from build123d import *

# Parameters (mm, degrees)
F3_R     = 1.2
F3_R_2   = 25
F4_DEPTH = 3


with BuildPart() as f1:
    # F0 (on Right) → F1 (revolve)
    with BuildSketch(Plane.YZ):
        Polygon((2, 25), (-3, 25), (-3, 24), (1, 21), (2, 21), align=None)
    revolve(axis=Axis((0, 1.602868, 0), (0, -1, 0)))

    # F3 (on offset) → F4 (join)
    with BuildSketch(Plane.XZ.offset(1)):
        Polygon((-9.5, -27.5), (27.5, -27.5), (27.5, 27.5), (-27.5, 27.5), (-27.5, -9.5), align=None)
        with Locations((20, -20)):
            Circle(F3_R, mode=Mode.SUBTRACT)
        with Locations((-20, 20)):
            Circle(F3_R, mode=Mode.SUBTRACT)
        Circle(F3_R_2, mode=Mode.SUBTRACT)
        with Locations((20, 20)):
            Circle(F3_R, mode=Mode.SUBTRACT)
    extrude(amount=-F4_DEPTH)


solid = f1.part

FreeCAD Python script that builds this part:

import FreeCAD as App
import Part
import Sketcher

doc = App.newDocument("Part")
params = doc.addObject("Spreadsheet::Sheet", "Params")
for row, (alias, value) in enumerate([
    ("sketch1_width", "5 mm"),
    ("sketch1_width2", "1 mm"),
    ("sketch1_height", "4 mm"),
    ("revolution_angle", "360 deg"),
    ("sketch2_diameter", "50 mm"),
    ("sketch2_diameter2", "2.4 mm"),
    ("sketch2_width", "37 mm"),
    ("sketch2_width2", "55 mm"),
    ("pad1_length", "3 mm"),
], start=1):
    params.set(f"A{row}", alias)
    params.set(f"B{row}", "=" + value)
    params.setAlias(f"B{row}", alias)

body = doc.addObject("PartDesign::Body", "Body")

sketch1 = body.newObject("Sketcher::SketchObject", "Sketch")
sketch1.AttachmentSupport = (doc.getObject("YZ_Plane"), [""])
sketch1.MapMode = "FlatFace"
sketch1.addGeometry([
    Part.LineSegment(App.Vector(2, 25, 0), App.Vector(-3, 25, 0)),
    Part.LineSegment(App.Vector(-3, 25, 0), App.Vector(-3, 24, 0)),
    Part.LineSegment(App.Vector(-3, 24, 0), App.Vector(1, 21, 0)),
    Part.LineSegment(App.Vector(1, 21, 0), App.Vector(2, 21, 0)),
    Part.LineSegment(App.Vector(2, 21, 0), App.Vector(2, 25, 0)),
], False)
sketch1.addConstraint([
    Sketcher.Constraint("Coincident", 0, 2, 1, 1),
    Sketcher.Constraint("Coincident", 1, 2, 2, 1),
    Sketcher.Constraint("Coincident", 2, 2, 3, 1),
    Sketcher.Constraint("Coincident", 3, 2, 4, 1),
    Sketcher.Constraint("Coincident", 4, 2, 0, 1),
    Sketcher.Constraint("Horizontal", 0),
    Sketcher.Constraint("Vertical", 1),
    Sketcher.Constraint("Horizontal", 3),
    Sketcher.Constraint("Vertical", 4),
    Sketcher.Constraint("Equal", 3, 1),
    Sketcher.Constraint("DistanceX", 0, 2, 0, 1, 5.0),
    Sketcher.Constraint("DistanceX", 3, 1, 3, 2, 1.0),
    Sketcher.Constraint("DistanceY", 4, 1, 4, 2, 4.0),
    Sketcher.Constraint("DistanceX", 0, 2, -1, 1, 3.0),
    Sketcher.Constraint("DistanceY", -1, 1, 0, 2, 25.0),
])
sketch1.setExpression("Constraints[10]", "Params.sketch1_width")
sketch1.setExpression("Constraints[11]", "Params.sketch1_width2")
sketch1.setExpression("Constraints[12]", "Params.sketch1_height")
revolution = body.newObject("PartDesign::Revolution", "Revolution")
revolution.Profile = sketch1
revolution.ReferenceAxis = (sketch1, ["H_Axis"])
revolution.setExpression("Angle", "Params.revolution_angle")

sketch2 = body.newObject("Sketcher::SketchObject", "Sketch001")
sketch2.AttachmentSupport = (doc.getObject("XZ_Plane"), [""])
sketch2.MapMode = "FlatFace"
sketch2.AttachmentOffset = App.Placement(App.Vector(0, 0, 1), App.Rotation())
sketch2.addGeometry([
    Part.LineSegment(App.Vector(-9.5, -27.5, 0), App.Vector(27.5, -27.5, 0)),
    Part.LineSegment(App.Vector(27.5, -27.5, 0), App.Vector(27.5, 27.5, 0)),
    Part.LineSegment(App.Vector(27.5, 27.5, 0), App.Vector(-27.5, 27.5, 0)),
    Part.LineSegment(App.Vector(-27.5, 27.5, 0), App.Vector(-27.5, -9.5, 0)),
    Part.LineSegment(App.Vector(-27.5, -9.5, 0), App.Vector(-9.5, -27.5, 0)),
    Part.Circle(App.Vector(20, -20, 0), App.Vector(0, 0, 1), 1.2),
    Part.Circle(App.Vector(-20, 20, 0), App.Vector(0, 0, 1), 1.2),
    Part.Circle(App.Vector(0, 0, 0), App.Vector(0, 0, 1), 25),
    Part.Circle(App.Vector(20, 20, 0), App.Vector(0, 0, 1), 1.2),
], False)
sketch2.addConstraint([
    Sketcher.Constraint("Coincident", 0, 2, 1, 1),
    Sketcher.Constraint("Coincident", 1, 2, 2, 1),
    Sketcher.Constraint("Coincident", 2, 2, 3, 1),
    Sketcher.Constraint("Coincident", 3, 2, 4, 1),
    Sketcher.Constraint("Coincident", 4, 2, 0, 1),
    Sketcher.Constraint("Horizontal", 0),
    Sketcher.Constraint("Vertical", 1),
    Sketcher.Constraint("Horizontal", 2),
    Sketcher.Constraint("Vertical", 3),
    Sketcher.Constraint("Coincident", 7, 3, -1, 1),
    Sketcher.Constraint("Equal", 5, 6),
    Sketcher.Constraint("Equal", 6, 8),
    Sketcher.Constraint("Symmetric", 5, 3, 6, 3, -1, 1),
    Sketcher.Constraint("Symmetric", 0, 2, 2, 2, -1, 1),
    Sketcher.Constraint("Symmetric", 6, 3, 8, 3, -2),
    Sketcher.Constraint("Equal", 2, 1),
    Sketcher.Constraint("Equal", 0, 3),
    Sketcher.Constraint("Diameter", 7, 50.0),
    Sketcher.Constraint("Diameter", 5, 2.4),
    Sketcher.Constraint("DistanceX", 0, 1, 0, 2, 37.0),
    Sketcher.Constraint("DistanceX", 2, 2, 2, 1, 55.0),
    Sketcher.Constraint("DistanceX", -1, 1, 5, 3, 20.0),
    Sketcher.Constraint("DistanceY", 5, 3, -1, 1, 20.0),
])
sketch2.setExpression("Constraints[17]", "Params.sketch2_diameter")
sketch2.setExpression("Constraints[18]", "Params.sketch2_diameter2")
sketch2.setExpression("Constraints[19]", "Params.sketch2_width")
sketch2.setExpression("Constraints[20]", "Params.sketch2_width2")
pad1 = body.newObject("PartDesign::Pad", "Pad")
pad1.Profile = sketch2
pad1.setExpression("Length", "Params.pad1_length")
pad1.Reversed = True

doc.recompute()
